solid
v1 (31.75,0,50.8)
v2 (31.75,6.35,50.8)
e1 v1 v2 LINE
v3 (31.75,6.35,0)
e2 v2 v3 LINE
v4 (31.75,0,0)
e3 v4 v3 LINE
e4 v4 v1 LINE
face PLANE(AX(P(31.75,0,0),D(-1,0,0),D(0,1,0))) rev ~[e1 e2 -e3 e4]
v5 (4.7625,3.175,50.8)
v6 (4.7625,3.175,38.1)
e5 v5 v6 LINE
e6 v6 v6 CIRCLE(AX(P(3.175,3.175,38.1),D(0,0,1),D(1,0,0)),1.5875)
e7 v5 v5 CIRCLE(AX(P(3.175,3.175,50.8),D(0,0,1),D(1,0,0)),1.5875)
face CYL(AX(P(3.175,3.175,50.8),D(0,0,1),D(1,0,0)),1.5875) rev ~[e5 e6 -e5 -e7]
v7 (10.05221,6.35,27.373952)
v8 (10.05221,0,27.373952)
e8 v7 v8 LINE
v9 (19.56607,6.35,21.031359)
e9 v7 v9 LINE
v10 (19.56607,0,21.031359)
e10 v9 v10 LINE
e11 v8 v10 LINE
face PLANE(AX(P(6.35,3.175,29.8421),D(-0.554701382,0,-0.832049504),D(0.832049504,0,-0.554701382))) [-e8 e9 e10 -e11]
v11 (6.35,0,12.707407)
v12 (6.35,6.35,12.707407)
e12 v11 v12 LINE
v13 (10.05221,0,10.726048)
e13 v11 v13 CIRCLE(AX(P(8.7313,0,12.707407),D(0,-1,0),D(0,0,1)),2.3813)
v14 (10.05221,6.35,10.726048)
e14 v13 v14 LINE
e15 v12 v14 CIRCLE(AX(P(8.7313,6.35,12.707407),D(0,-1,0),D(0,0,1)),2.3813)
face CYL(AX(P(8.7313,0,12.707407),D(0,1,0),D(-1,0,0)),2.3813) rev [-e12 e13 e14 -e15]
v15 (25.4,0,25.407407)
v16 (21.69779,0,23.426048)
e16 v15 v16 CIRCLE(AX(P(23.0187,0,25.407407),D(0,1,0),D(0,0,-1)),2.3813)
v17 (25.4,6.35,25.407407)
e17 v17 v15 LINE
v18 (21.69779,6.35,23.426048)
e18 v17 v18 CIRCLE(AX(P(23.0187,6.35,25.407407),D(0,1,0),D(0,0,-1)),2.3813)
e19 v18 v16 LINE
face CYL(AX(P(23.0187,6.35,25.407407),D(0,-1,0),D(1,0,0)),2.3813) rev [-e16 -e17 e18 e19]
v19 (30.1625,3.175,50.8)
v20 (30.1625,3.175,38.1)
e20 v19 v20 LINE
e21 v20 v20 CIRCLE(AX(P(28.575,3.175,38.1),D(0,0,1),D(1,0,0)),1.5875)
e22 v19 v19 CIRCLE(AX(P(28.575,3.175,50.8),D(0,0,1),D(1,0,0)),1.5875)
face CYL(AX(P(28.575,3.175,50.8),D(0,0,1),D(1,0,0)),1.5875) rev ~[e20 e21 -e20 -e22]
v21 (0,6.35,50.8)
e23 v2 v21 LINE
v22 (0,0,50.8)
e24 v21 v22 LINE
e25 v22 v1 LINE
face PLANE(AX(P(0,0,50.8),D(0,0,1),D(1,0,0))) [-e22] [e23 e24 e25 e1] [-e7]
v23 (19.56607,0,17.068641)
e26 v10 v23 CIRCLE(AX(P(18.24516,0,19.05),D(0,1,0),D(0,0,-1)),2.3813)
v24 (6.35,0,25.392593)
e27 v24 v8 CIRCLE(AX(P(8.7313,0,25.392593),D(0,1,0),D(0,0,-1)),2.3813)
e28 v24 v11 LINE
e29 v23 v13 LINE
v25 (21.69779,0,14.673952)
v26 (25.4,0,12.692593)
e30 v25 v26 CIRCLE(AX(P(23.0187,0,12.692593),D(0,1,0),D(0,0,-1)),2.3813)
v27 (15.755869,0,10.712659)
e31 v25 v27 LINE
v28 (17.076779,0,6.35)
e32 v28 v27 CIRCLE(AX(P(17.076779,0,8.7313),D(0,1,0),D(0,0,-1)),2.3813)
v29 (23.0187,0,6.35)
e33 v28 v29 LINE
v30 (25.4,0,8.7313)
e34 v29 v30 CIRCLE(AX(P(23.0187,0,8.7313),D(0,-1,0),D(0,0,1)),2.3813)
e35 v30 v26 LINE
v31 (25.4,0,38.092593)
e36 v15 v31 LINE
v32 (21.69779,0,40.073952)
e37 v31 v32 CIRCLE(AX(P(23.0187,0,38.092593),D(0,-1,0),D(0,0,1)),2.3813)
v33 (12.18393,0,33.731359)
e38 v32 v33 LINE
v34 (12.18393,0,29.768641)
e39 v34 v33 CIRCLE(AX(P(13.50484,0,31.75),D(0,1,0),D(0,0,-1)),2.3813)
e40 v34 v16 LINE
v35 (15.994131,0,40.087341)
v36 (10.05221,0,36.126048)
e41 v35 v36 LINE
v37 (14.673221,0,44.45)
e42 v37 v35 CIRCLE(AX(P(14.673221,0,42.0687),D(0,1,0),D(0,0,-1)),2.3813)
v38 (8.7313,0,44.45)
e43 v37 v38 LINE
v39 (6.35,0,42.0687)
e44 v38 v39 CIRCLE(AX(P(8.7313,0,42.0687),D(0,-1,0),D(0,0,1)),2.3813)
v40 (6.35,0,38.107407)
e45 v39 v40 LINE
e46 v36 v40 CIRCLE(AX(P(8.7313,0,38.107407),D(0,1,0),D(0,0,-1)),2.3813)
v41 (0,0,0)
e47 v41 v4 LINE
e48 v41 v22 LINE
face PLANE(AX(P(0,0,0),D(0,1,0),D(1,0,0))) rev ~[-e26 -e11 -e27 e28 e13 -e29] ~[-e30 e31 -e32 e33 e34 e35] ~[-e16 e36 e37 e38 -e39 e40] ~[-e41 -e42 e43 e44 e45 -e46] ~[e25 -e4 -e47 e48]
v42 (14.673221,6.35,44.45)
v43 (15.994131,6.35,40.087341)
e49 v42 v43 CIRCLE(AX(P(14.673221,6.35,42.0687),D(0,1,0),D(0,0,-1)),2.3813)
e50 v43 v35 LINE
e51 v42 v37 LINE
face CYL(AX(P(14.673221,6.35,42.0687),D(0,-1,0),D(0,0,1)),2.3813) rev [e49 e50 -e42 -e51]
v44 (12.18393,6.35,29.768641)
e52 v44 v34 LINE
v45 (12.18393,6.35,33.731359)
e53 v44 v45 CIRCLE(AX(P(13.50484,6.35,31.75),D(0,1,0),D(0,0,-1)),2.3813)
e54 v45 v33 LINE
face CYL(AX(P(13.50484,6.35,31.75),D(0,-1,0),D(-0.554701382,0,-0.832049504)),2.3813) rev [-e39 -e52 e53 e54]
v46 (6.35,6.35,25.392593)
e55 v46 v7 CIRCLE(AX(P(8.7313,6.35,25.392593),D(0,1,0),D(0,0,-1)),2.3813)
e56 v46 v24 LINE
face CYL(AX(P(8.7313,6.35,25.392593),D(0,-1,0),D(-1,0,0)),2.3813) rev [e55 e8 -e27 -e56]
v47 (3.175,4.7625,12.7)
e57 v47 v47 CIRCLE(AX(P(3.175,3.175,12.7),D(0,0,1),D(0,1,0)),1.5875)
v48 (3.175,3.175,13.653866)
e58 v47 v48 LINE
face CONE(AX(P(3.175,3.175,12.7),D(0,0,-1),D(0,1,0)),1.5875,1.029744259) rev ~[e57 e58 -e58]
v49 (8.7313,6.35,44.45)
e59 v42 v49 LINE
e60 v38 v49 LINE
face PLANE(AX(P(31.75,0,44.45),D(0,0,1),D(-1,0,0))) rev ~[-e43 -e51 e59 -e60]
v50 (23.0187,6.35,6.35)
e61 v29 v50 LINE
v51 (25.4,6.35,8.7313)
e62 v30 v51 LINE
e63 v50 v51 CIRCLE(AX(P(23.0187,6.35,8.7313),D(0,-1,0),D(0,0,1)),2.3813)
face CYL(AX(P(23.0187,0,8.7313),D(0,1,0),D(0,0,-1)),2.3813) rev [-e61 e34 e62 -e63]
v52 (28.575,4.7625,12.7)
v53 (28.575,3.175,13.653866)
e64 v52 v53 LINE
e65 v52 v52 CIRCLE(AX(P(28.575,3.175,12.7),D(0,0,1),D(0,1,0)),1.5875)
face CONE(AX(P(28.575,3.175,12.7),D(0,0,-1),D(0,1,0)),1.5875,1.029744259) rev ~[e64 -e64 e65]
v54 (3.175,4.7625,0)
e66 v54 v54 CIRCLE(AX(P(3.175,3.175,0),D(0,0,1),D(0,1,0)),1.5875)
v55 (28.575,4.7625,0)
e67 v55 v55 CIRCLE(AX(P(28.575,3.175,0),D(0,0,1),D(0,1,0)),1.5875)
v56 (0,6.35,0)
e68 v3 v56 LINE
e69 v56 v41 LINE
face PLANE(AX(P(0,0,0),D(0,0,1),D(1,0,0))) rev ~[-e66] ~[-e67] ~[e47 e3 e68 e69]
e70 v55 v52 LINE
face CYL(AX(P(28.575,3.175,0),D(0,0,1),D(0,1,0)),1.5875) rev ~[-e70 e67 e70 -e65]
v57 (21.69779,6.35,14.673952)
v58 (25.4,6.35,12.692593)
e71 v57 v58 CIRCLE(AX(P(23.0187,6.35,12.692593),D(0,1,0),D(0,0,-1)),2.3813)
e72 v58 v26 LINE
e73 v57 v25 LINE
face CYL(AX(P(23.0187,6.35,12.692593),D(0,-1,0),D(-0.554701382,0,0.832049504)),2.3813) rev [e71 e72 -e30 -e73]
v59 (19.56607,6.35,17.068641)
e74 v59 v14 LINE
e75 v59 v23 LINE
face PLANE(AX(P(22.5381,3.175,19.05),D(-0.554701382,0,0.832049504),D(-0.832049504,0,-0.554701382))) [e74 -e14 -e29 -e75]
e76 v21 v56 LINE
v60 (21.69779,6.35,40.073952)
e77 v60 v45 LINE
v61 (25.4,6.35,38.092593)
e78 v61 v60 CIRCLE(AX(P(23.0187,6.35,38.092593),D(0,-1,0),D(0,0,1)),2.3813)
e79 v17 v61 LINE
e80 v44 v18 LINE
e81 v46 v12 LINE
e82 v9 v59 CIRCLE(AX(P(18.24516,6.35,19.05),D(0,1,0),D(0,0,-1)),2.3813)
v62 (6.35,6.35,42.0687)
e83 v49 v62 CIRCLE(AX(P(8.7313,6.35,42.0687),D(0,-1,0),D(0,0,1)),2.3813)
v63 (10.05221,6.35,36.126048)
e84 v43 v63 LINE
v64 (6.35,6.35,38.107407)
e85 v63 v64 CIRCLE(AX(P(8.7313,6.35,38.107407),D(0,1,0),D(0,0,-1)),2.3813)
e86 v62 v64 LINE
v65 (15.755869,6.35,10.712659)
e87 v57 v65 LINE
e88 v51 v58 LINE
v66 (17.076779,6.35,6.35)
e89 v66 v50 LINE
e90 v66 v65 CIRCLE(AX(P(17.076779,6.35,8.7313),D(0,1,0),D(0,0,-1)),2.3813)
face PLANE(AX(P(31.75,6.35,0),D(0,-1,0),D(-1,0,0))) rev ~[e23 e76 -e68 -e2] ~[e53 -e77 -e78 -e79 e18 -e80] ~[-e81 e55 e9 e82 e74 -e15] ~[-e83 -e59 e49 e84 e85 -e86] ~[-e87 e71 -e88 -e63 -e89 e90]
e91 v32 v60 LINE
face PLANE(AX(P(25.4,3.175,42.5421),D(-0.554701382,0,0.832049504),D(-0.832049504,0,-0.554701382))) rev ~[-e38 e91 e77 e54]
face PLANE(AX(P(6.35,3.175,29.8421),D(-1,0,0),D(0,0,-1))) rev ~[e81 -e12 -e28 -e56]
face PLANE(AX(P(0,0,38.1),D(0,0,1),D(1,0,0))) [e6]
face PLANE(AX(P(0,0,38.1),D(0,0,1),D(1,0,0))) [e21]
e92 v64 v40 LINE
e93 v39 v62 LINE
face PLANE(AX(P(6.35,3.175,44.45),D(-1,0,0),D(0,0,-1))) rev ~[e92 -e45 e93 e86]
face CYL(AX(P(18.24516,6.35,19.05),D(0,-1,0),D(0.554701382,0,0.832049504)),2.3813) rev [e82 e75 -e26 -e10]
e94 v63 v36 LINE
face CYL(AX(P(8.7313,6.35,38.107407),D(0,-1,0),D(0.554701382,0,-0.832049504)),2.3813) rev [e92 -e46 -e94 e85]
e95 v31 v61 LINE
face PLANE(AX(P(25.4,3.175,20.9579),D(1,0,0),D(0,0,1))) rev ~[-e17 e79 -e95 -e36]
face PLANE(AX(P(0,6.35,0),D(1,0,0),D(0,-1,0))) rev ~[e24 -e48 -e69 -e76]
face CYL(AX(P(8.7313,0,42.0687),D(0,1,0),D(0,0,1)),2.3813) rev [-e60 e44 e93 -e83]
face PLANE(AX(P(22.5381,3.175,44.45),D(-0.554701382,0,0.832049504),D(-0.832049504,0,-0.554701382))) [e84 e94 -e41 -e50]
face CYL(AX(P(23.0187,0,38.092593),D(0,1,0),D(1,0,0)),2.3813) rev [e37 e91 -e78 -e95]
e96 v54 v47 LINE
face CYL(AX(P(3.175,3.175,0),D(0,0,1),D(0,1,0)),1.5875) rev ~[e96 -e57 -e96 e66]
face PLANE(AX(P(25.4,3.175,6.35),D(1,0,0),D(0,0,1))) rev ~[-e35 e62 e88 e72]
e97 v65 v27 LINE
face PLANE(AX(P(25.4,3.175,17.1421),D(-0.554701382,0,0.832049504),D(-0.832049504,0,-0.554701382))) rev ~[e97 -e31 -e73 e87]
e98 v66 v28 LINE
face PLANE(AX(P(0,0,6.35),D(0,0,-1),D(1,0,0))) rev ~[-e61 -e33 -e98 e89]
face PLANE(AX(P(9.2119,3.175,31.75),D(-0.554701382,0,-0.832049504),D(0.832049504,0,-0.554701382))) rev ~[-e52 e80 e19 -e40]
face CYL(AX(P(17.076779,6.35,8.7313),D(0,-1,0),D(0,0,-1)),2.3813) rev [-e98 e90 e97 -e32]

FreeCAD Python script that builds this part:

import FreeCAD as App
import Part
import Sketcher
from FreeCAD import Vector
Q = App.Units.Quantity


def edges_at(feature, points):
    """Names of the edges that pass closest to the given points."""
    edges = feature.Shape.Edges
    near = lambda p: min(range(len(edges)), key=lambda i: edges[i].distToShape(Part.Vertex(*p))[0])
    return sorted({f"Edge{near(p) + 1}" for p in points})


def add_polygon(sketch, points):
    """Adds a closed chain of lines whose ends are joined by coincident constraints."""
    first, n = sketch.GeometryCount, len(points)
    for a, b in zip(points, points[1:] + points[:1]):
        sketch.addGeometry(Part.LineSegment(App.Vector(*a, 0), App.Vector(*b, 0)), False)
    for i in range(n):
        sketch.addConstraint(Sketcher.Constraint("Coincident", first + i, 2, first + (i + 1) % n, 1))

doc = App.newDocument("Part")
params = doc.addObject("Spreadsheet::Sheet", "Params")
for row, (alias, value) in enumerate([
    ("sketch1_width", "1.25 in"),
    ("sketch1_height", "0.25 in"),
    ("pad1_length", "2 in"),
    ("pocket1_length", "1 in"),
    ("sketch3_height", "1.5 in"),
    ("sketch3_width", "1.25 in"),
    ("pocket2_length", "0.0625 in"),
    ("sketch4_height", "1.5 in"),
    ("sketch4_width", "1.25 in"),
    ("pocket3_length", "0.0625 in"),
    ("sketch5_height", "2 in"),
    ("pad2_length", "0.25 in"),
    ("fillet_radius", "0.093752 in"),
    ("sketch6_diameter", "0.125 in"),
    ("pocket4_length", "0.5 in"),
    ("sketch7_diameter", "0.125 in"),
    ("hole_diameter", "0.125 in"),
    ("hole_depth", "0.5 in"),
], start=1):
    params.set(f"A{row}", alias)
    params.set(f"B{row}", "=" + value)
    params.setAlias(f"B{row}", alias)

body = doc.addObject("PartDesign::Body", "Body")

# Sketch on XY plane
sketch1 = body.newObject("Sketcher::SketchObject", "Sketch")
sketch1.AttachmentSupport = (doc.getObject("XY_Plane"), [""])
sketch1.MapMode = "FlatFace"
add_polygon(sketch1, [(0, 6.35), (0, 0), (31.75, 0), (31.75, 6.35)])  # lines 0-3
sketch1.addConstraint([
    Sketcher.Constraint("Vertical", 0),
    Sketcher.Constraint("Horizontal", 1),
    Sketcher.Constraint("Vertical", 2),
    Sketcher.Constraint("Horizontal", 3),
    Sketcher.Constraint("Coincident", 0, 2, -1, 1),
    Sketcher.Constraint("DistanceX", 1, 1, 1, 2, Q("1.25 in")),
    Sketcher.Constraint("DistanceY", 0, 2, 0, 1, Q("0.25 in")),
])
sketch1.setExpression("Constraints[9]", "Params.sketch1_width")
sketch1.setExpression("Constraints[10]", "Params.sketch1_height")
pad1 = body.newObject("PartDesign::Pad", "Pad")
pad1.Profile = sketch1
pad1.setExpression("Length", "Params.pad1_length")

# Sketch on XZ plane
sketch2 = body.newObject("Sketcher::SketchObject", "Sketch001")
sketch2.AttachmentSupport = (doc.getObject("XZ_Plane"), [""])
sketch2.MapMode = "FlatFace"
sketch2.AttachmentOffset = App.Placement(Vector(0, 0, -0.125 * 25.4), App.Rotation())
add_polygon(sketch2, [(25.4, 6.35), (9.2119, 6.35), (25.4, 17.1421)])  # lines 0-2
add_polygon(sketch2, [(22.5381, 19.05), (6.35, 8.2579), (6.35, 29.8421)])  # lines 3-5
add_polygon(sketch2, [(25.4, 42.5421), (25.4, 20.9579), (9.2119, 31.75)])  # lines 6-8
add_polygon(sketch2, [(22.5381, 44.45), (6.35, 33.6579), (6.35, 44.45)])  # lines 9-11
sketch2.addConstraint([
    Sketcher.Constraint("Horizontal", 0),
    Sketcher.Constraint("Vertical", 2),
    Sketcher.Constraint("Vertical", 4),
    Sketcher.Constraint("Vertical", 6),
    Sketcher.Constraint("Vertical", 10),
    Sketcher.Constraint("Horizontal", 11),
    Sketcher.Constraint("Parallel", 1, 3),
    Sketcher.Constraint("Parallel", 5, 7),
    Sketcher.Constraint("Parallel", 3, 8),
    Sketcher.Constraint("Parallel", 8, 9),
    Sketcher.Constraint("Vertical", 2, 2, 6, 2),
    Sketcher.Constraint("Vertical", 0, 2, 7, 2),
    Sketcher.Constraint("Vertical", 4, 2, 9, 2),
    Sketcher.Constraint("Vertical", 5, 2, 11, 2),
    Sketcher.Constraint("Equal", 0, 11),
    Sketcher.Constraint("Equal", 3, 5),
    Sketcher.Constraint("DistanceY", -1, 1, 0, 2, Q("0.25 in")),
    Sketcher.Constraint("DistanceX", -1, 1, 3, 2, Q("0.25 in")),
    Sketcher.Constraint("Angle", 1, Q("33.6901 deg")),
    Sketcher.Constraint("DistanceX", -1, 1, 1, 2, Q("1 in")),
    Sketcher.Constraint("DistanceY", 1, 2, 8, 2, Q("1 in")),
    Sketcher.Constraint("DistanceY", 5, 2, 10, 2, Q("1 in")),
    Sketcher.Constraint("DistanceY", 1, 2, 4, 2, Q("0.5 in")),
    Sketcher.Constraint("DistanceX", 0, 2, 0, 1, Q("16.188 mm")),
])
pocket1 = body.newObject("PartDesign::Pocket", "Pocket")
pocket1.Profile = sketch2
pocket1.setExpression("Length", "Params.pocket1_length")
pocket1.Midplane = True

# Sketch on XZ plane
sketch3 = body.newObject("Sketcher::SketchObject", "Sketch002")
sketch3.AttachmentSupport = (doc.getObject("XZ_Plane"), [""])
sketch3.MapMode = "FlatFace"
sketch3.AttachmentOffset = App.Placement(Vector(0, 0, -0.25 * 25.4), App.Rotation())
add_polygon(sketch3, [(0, 6.35), (0, 44.45), (31.75, 44.45), (31.75, 6.35)])  # lines 0-3
sketch3.addConstraint([
    Sketcher.Constraint("Vertical", 0),
    Sketcher.Constraint("Horizontal", 1),
    Sketcher.Constraint("Vertical", 2),
    Sketcher.Constraint("Horizontal", 3),
    Sketcher.Constraint("PointOnObject", 0, 2, -2),
    Sketcher.Constraint("DistanceY", 0, 1, 0, 2, Q("1.5 in")),
    Sketcher.Constraint("DistanceX", 1, 1, 1, 2, Q("1.25 in")),
    Sketcher.Constraint("DistanceY", -1, 1, 0, 2, Q("1.75 in")),
])
sketch3.setExpression("Constraints[9]", "Params.sketch3_height")
sketch3.setExpression("Constraints[10]", "Params.sketch3_width")
pocket2 = body.newObject("PartDesign::Pocket", "Pocket001")
pocket2.Profile = sketch3
pocket2.setExpression("Length", "Params.pocket2_length")
pocket2.Reversed = True

# Sketch on XZ plane
sketch4 = body.newObject("Sketcher::SketchObject", "Sketch003")
sketch4.AttachmentSupport = (doc.getObject("XZ_Plane"), [""])
sketch4.MapMode = "FlatFace"
add_polygon(sketch4, [(0, 44.45), (0, 6.35), (31.75, 6.35), (31.75, 44.45)])  # lines 0-3
sketch4.addConstraint([
    Sketcher.Constraint("Vertical", 0),
    Sketcher.Constraint("Horizontal", 1),
    Sketcher.Constraint("Vertical", 2),
    Sketcher.Constraint("Horizontal", 3),
    Sketcher.Constraint("PointOnObject", 0, 2, -2),
    Sketcher.Constraint("DistanceY", 0, 2, 0, 1, Q("1.5 in")),
    Sketcher.Constraint("DistanceX", 1, 1, 1, 2, Q("1.25 in")),
    Sketcher.Constraint("DistanceY", -1, 1, 0, 2, Q("0.25 in")),
])
sketch4.setExpression("Constraints[9]", "Params.sketch4_height")
sketch4.setExpression("Constraints[10]", "Params.sketch4_width")
pocket3 = body.newObject("PartDesign::Pocket", "Pocket002")
pocket3.Profile = sketch4
pocket3.setExpression("Length", "Params.pocket3_length")

# Sketch on XZ plane
sketch5 = body.newObject("Sketcher::SketchObject", "Sketch004")
sketch5.AttachmentSupport = (doc.getObject("XZ_Plane"), [""])
sketch5.MapMode = "FlatFace"
sketch5.AttachmentOffset = App.Placement(Vector(0, 0, -0.125 * 25.4), App.Rotation())
add_polygon(sketch5, [(31.75, 0), (0, 0), (0, 50.8), (31.75, 50.8)])  # lines 0-3
add_polygon(sketch5, [(6.35, 29.8421), (6.35, 8.2579), (22.5381, 19.05)])  # lines 4-6
add_polygon(sketch5, [(6.35, 44.45), (6.35, 33.6579), (22.5381, 44.45)])  # lines 7-9
add_polygon(sketch5, [(25.4, 20.9579), (25.4, 42.5421), (9.2119, 31.75)])  # lines 10-12
add_polygon(sketch5, [(25.4, 6.35), (25.4, 17.1421), (9.2119, 6.35)])  # lines 13-15
sketch5.addConstraint([
    Sketcher.Constraint("Horizontal", 0),
    Sketcher.Constraint("Vertical", 1),
    Sketcher.Constraint("Horizontal", 2),
    Sketcher.Constraint("Vertical", 3),
    Sketcher.Constraint("Vertical", 4),
    Sketcher.Constraint("Vertical", 7),
    Sketcher.Constraint("Horizontal", 9),
    Sketcher.Constraint("Vertical", 10),
    Sketcher.Constraint("Vertical", 13),
    Sketcher.Constraint("Horizontal", 15),
    Sketcher.Constraint("Coincident", 0, 2, -1, 1),
    Sketcher.Constraint("Parallel", 5, 8),
    Sketcher.Constraint("Parallel", 8, 11),
    Sketcher.Constraint("Parallel", 6, 12),
    Sketcher.Constraint("Parallel", 11, 14),
    Sketcher.Constraint("Vertical", 6, 2, 7, 2),
    Sketcher.Constraint("Vertical", 5, 2, 8, 2),
    Sketcher.Constraint("Vertical", 12, 2, 13, 2),
    Sketcher.Constraint("Vertical", 11, 2, 14, 2),
    Sketcher.Constraint("Equal", 9, 15),
    Sketcher.Constraint("Equal", 5, 6),
    Sketcher.Constraint("DistanceY", 1, 1, 1, 2, Q("2 in")),
    Sketcher.Constraint("DistanceX", -1, 1, 4, 2, Q("0.25 in")),
    Sketcher.Constraint("DistanceY", -1, 1, 14, 2, Q("0.25 in")),
    Sketcher.Constraint("Angle", 5, Q("33.6901 deg")),
    Sketcher.Constraint("DistanceY", 8, 2, 2, 2, Q("0.25 in")),
    Sketcher.Constraint("DistanceX", 10, 2, 2, 2, Q("0.25 in")),
    Sketcher.Constraint("DistanceX", -1, 1, 10, 2, Q("1 in")),
    Sketcher.Constraint("DistanceY", 4, 2, 7, 2, Q("1 in")),
    Sketcher.Constraint("DistanceY", 6, 2, 10, 2, Q("0.5 in")),
    Sketcher.Constraint("DistanceX", 9, 2, 9, 1, Q("16.188 mm")),
])
sketch5.setExpression("Constraints[37]", "Params.sketch5_height")
pad2 = body.newObject("PartDesign::Pad", "Pad001")
pad2.Profile = sketch5
pad2.setExpression("Length", "Params.pad2_length")
pad2.Midplane = True
doc.recompute()

fillet = body.newObject("PartDesign::Fillet", "Fillet")
fillet.Base = (pad2, edges_at(pad2, [
    (25.4, 3.175, 17.142),
    (22.538, 3.175, 19.05),
    (25.4, 3.175, 20.958),
    (25.4, 3.175, 42.542),
    (22.538, 3.175, 44.45),
    (6.35, 3.175, 44.45),
    (6.35, 3.175, 33.658),
    (9.212, 3.175, 31.75),
    (6.35, 3.175, 29.842),
    (6.35, 3.175, 8.258),
    (9.212, 3.175, 6.35),
    (25.4, 3.175, 6.35),
]))
fillet.setExpression("Radius", "Params.fillet_radius")

# Sketch on XY plane
sketch6 = body.newObject("Sketcher::SketchObject", "Sketch005")
sketch6.AttachmentSupport = (doc.getObject("XY_Plane"), [""])
sketch6.MapMode = "FlatFace"
sketch6.AttachmentOffset = App.Placement(Vector(0, 0, 2 * 25.4), App.Rotation())
sketch6.addGeometry([
    Part.Circle(Vector(3.175, 3.175, 0), Vector(0, 0, 1), 1.5875),
    Part.Circle(Vector(28.575, 3.175, 0), Vector(0, 0, 1), 1.5875),
], False)
sketch6.addConstraint([
    Sketcher.Constraint("Equal", 0, 1),
    Sketcher.Constraint("Horizontal", 0, 3, 1, 3),
    Sketcher.Constraint("Diameter", 0, Q("0.125 in")),
    Sketcher.Constraint("DistanceX", 0, 3, 1, 3, Q("1 in")),
    Sketcher.Constraint("DistanceX", -1, 1, 0, 3, Q("0.125 in")),
    Sketcher.Constraint("DistanceY", -1, 1, 0, 3, Q("0.125 in")),
])
sketch6.setExpression("Constraints[2]", "Params.sketch6_diameter")
pocket4 = body.newObject("PartDesign::Pocket", "Pocket003")
pocket4.Profile = sketch6
pocket4.setExpression("Length", "Params.pocket4_length")

# Sketch on XY plane
sketch7 = body.newObject("Sketcher::SketchObject", "Sketch006")
sketch7.AttachmentSupport = (doc.getObject("XY_Plane"), [""])
sketch7.MapMode = "FlatFace"
sketch7.addGeometry([
    Part.Circle(Vector(3.175, 3.175, 0), Vector(0, 0, 1), 1.5875),
    Part.Circle(Vector(28.575, 3.175, 0), Vector(0, 0, 1), 1.5875),
], False)
sketch7.addConstraint([
    Sketcher.Constraint("Equal", 0, 1),
    Sketcher.Constraint("Horizontal", 0, 3, 1, 3),
    Sketcher.Constraint("Diameter", 0, Q("0.125 in")),
    Sketcher.Constraint("DistanceX", 0, 3, 1, 3, Q("1 in")),
    Sketcher.Constraint("DistanceX", -1, 1, 0, 3, Q("0.125 in")),
    Sketcher.Constraint("DistanceY", -1, 1, 0, 3, Q("0.125 in")),
])
sketch7.setExpression("Constraints[2]", "Params.sketch7_diameter")
doc.recompute()
hole = body.newObject("PartDesign::Hole", "Hole")
hole.Profile = sketch7
hole.ThreadType = "None"
hole.setExpression("Diameter", "Params.hole_diameter")
hole.DepthType = "Dimension"
hole.setExpression("Depth", "Params.hole_depth")
hole.DrillPoint = "Angled"
hole.DrillPointAngle = 118
hole.Reversed = True

doc.recompute()
